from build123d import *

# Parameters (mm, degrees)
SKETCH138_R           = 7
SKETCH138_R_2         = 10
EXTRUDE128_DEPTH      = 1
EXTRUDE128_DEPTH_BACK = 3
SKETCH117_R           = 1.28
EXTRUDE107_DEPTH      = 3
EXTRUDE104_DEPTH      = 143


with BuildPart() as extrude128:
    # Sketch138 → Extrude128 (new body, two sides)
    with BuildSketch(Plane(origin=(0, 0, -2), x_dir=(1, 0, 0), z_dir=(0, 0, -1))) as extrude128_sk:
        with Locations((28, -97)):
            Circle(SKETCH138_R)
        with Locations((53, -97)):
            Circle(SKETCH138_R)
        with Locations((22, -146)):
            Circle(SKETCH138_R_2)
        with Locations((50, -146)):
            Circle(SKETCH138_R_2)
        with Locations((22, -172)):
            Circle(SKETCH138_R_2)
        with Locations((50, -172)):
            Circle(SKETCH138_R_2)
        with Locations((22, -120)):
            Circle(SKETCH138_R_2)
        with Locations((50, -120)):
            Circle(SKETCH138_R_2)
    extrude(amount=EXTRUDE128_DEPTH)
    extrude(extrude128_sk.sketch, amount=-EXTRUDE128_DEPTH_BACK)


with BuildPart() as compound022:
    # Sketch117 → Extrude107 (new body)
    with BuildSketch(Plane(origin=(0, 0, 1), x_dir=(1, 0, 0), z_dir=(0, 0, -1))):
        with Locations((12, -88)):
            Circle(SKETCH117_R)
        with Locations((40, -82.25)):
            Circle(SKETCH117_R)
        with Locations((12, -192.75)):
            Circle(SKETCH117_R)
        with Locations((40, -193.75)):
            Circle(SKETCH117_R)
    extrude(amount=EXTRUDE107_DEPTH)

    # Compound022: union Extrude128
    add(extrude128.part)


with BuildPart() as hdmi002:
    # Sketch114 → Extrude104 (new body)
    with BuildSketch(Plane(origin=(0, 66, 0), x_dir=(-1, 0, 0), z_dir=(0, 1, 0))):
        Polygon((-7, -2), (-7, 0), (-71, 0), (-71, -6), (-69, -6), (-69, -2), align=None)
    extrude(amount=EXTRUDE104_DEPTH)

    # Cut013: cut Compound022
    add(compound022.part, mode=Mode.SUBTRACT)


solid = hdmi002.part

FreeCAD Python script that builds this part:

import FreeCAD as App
import Part
import Sketcher

V = App.Vector
Q = App.Units.Quantity


def add_polygon(sketch, points):
    """Adds a closed chain of lines whose ends are joined by coincident constraints."""
    first, n = sketch.GeometryCount, len(points)
    for a, b in zip(points, points[1:] + points[:1]):
        sketch.addGeometry(Part.LineSegment(App.Vector(*a, 0), App.Vector(*b, 0)), False)
    for i in range(n):
        sketch.addConstraint(Sketcher.Constraint("Coincident", first + i, 2, first + (i + 1) % n, 1))

doc = App.newDocument("Part")
body = doc.addObject("PartDesign::Body", "Body")
body.AllowCompound = True

sketch1 = doc.addObject("Sketcher::SketchObject", "Sketch")
body.addObject(sketch1)
sketch1.AttachmentSupport = (doc.XY_Plane, [""])
sketch1.MapMode = "FlatFace"
sketch1.AttachmentOffset = App.Placement(V(0, 0, -2), App.Rotation())
sketch1.addGeometry(Part.Circle(V(28, 97, 0), V(0, 0, 1), 7), False)
sketch1.addGeometry(Part.Circle(V(53, 97, 0), V(0, 0, 1), 7), False)
sketch1.addGeometry(Part.Circle(V(22, 146, 0), V(0, 0, 1), 10), False)
sketch1.addGeometry(Part.Circle(V(50, 146, 0), V(0, 0, 1), 10), False)
sketch1.addGeometry(Part.Circle(V(22, 172, 0), V(0, 0, 1), 10), False)
sketch1.addGeometry(Part.Circle(V(50, 172, 0), V(0, 0, 1), 10), False)
sketch1.addGeometry(Part.Circle(V(22, 120, 0), V(0, 0, 1), 10), False)
sketch1.addGeometry(Part.Circle(V(50, 120, 0), V(0, 0, 1), 10), False)
sketch1.addConstraint(Sketcher.Constraint("Equal", 0, 1))
sketch1.addConstraint(Sketcher.Constraint("Equal", 2, 3))
sketch1.addConstraint(Sketcher.Constraint("Equal", 3, 4))
sketch1.addConstraint(Sketcher.Constraint("Equal", 4, 5))
sketch1.addConstraint(Sketcher.Constraint("Equal", 5, 6))
sketch1.addConstraint(Sketcher.Constraint("Equal", 6, 7))
sketch1.addConstraint(Sketcher.Constraint("Horizontal", 0, 3, 1, 3))
sketch1.addConstraint(Sketcher.Constraint("Horizontal", 2, 3, 3, 3))
sketch1.addConstraint(Sketcher.Constraint("Horizontal", 4, 3, 5, 3))
sketch1.addConstraint(Sketcher.Constraint("Horizontal", 6, 3, 7, 3))
sketch1.addConstraint(Sketcher.Constraint("Vertical", 2, 3, 4, 3))
sketch1.addConstraint(Sketcher.Constraint("Vertical", 3, 3, 5, 3))
sketch1.addConstraint(Sketcher.Constraint("Vertical", 4, 3, 6, 3))
sketch1.addConstraint(Sketcher.Constraint("Vertical", 5, 3, 7, 3))
sketch1.addConstraint(Sketcher.Constraint("Diameter", 0, Q("14 mm")))
sketch1.addConstraint(Sketcher.Constraint("Diameter", 2, Q("20 mm")))
sketch1.addConstraint(Sketcher.Constraint("DistanceX", -1, 1, 0, 3, Q("28 mm")))
sketch1.addConstraint(Sketcher.Constraint("DistanceY", -1, 1, 0, 3, Q("97 mm")))
sketch1.addConstraint(Sketcher.Constraint("DistanceX", -1, 1, 1, 3, Q("53 mm")))
sketch1.addConstraint(Sketcher.Constraint("DistanceX", -1, 1, 2, 3, Q("22 mm")))
sketch1.addConstraint(Sketcher.Constraint("DistanceY", -1, 1, 2, 3, Q("146 mm")))
sketch1.addConstraint(Sketcher.Constraint("DistanceX", -1, 1, 3, 3, Q("50 mm")))
sketch1.addConstraint(Sketcher.Constraint("DistanceY", -1, 1, 4, 3, Q("172 mm")))
sketch1.addConstraint(Sketcher.Constraint("DistanceY", -1, 1, 6, 3, Q("120 mm")))
pad1 = doc.addObject("PartDesign::Pad", "Pad")
body.addObject(pad1)
pad1.Profile = sketch1
pad1.Type = "TwoLengths"
pad1.Length = 1
pad1.Length2 = 3
pad1.Reversed = True
body2 = doc.addObject("PartDesign::Body", "Body001")
body2.AllowCompound = True

sketch2 = doc.addObject("Sketcher::SketchObject", "Sketch001")
body2.addObject(sketch2)
sketch2.AttachmentSupport = (doc.getObject("XY_Plane001"), [""])
sketch2.MapMode = "FlatFace"
sketch2.AttachmentOffset = App.Placement(V(0, 0, 1), App.Rotation())
sketch2.addGeometry(Part.Circle(V(12, 88, 0), V(0, 0, 1), 1.28), False)
sketch2.addGeometry(Part.Circle(V(40, 82.25, 0), V(0, 0, 1), 1.28), False)
sketch2.addGeometry(Part.Circle(V(12, 192.75, 0), V(0, 0, 1), 1.28), False)
sketch2.addGeometry(Part.Circle(V(40, 193.75, 0), V(0, 0, 1), 1.28), False)
sketch2.addConstraint(Sketcher.Constraint("Equal", 0, 1))
sketch2.addConstraint(Sketcher.Constraint("Equal", 1, 2))
sketch2.addConstraint(Sketcher.Constraint("Equal", 2, 3))
sketch2.addConstraint(Sketcher.Constraint("Vertical", 0, 3, 2, 3))
sketch2.addConstraint(Sketcher.Constraint("Vertical", 1, 3, 3, 3))
sketch2.addConstraint(Sketcher.Constraint("Diameter", 0, Q("2.56 mm")))
sketch2.addConstraint(Sketcher.Constraint("DistanceX", -1, 1, 0, 3, Q("12 mm")))
sketch2.addConstraint(Sketcher.Constraint("DistanceY", -1, 1, 0, 3, Q("88 mm")))
sketch2.addConstraint(Sketcher.Constraint("DistanceX", -1, 1, 1, 3, Q("40 mm")))
sketch2.addConstraint(Sketcher.Constraint("DistanceY", 2, 3, 3, 3, Q("1 mm")))
sketch2.addConstraint(Sketcher.Constraint("DistanceY", 1, 3, 2, 3, Q("110.5 mm")))
sketch2.addConstraint(Sketcher.Constraint("DistanceY", -1, 1, 1, 3, Q("82.25 mm")))
pad2 = doc.addObject("PartDesign::Pad", "Pad001")
body2.addObject(pad2)
pad2.Profile = sketch2
pad2.Length = 3
pad2.Reversed = True
doc.recompute()

boolean = doc.addObject("PartDesign::Boolean", "Boolean")
body2.addObject(boolean)
boolean.Type = "Fuse"
boolean.addObjects([body])
body3 = doc.addObject("PartDesign::Body", "Body002")

sketch3 = doc.addObject("Sketcher::SketchObject", "Sketch002")
body3.addObject(sketch3)
sketch3.AttachmentSupport = (doc.getObject("XZ_Plane002"), [""])
sketch3.MapMode = "FlatFace"
sketch3.AttachmentOffset = App.Placement(V(0, 0, -66), App.Rotation())
add_polygon(sketch3, [(7, -2), (7, 0), (71, 0), (71, -6), (69, -6), (69, -2)])
sketch3.addConstraint(Sketcher.Constraint("Vertical", 0))
sketch3.addConstraint(Sketcher.Constraint("Horizontal", 1))
sketch3.addConstraint(Sketcher.Constraint("Vertical", 2))
sketch3.addConstraint(Sketcher.Constraint("Horizontal", 3))
sketch3.addConstraint(Sketcher.Constraint("Vertical", 4))
sketch3.addConstraint(Sketcher.Constraint("Horizontal", 5))
sketch3.addConstraint(Sketcher.Constraint("PointOnObject", 0, 2, -1))
sketch3.addConstraint(Sketcher.Constraint("Equal", 3, 0))
sketch3.addConstraint(Sketcher.Constraint("DistanceX", 1, 1, 1, 2, Q("64 mm")))
sketch3.addConstraint(Sketcher.Constraint("DistanceX", 3, 2, 3, 1, Q("2 mm")))
sketch3.addConstraint(Sketcher.Constraint("DistanceY", 2, 2, 2, 1, Q("6 mm")))
sketch3.addConstraint(Sketcher.Constraint("DistanceX", -1, 1, 0, 2, Q("7 mm")))
pad3 = doc.addObject("PartDesign::Pad", "Pad002")
body3.addObject(pad3)
pad3.Profile = sketch3
pad3.Length = 143
pad3.Reversed = True
doc.recompute()

boolean2 = doc.addObject("PartDesign::Boolean", "Boolean001")
body3.addObject(boolean2)
boolean2.Type = "Cut"
boolean2.addObjects([body2])

doc.recompute()
